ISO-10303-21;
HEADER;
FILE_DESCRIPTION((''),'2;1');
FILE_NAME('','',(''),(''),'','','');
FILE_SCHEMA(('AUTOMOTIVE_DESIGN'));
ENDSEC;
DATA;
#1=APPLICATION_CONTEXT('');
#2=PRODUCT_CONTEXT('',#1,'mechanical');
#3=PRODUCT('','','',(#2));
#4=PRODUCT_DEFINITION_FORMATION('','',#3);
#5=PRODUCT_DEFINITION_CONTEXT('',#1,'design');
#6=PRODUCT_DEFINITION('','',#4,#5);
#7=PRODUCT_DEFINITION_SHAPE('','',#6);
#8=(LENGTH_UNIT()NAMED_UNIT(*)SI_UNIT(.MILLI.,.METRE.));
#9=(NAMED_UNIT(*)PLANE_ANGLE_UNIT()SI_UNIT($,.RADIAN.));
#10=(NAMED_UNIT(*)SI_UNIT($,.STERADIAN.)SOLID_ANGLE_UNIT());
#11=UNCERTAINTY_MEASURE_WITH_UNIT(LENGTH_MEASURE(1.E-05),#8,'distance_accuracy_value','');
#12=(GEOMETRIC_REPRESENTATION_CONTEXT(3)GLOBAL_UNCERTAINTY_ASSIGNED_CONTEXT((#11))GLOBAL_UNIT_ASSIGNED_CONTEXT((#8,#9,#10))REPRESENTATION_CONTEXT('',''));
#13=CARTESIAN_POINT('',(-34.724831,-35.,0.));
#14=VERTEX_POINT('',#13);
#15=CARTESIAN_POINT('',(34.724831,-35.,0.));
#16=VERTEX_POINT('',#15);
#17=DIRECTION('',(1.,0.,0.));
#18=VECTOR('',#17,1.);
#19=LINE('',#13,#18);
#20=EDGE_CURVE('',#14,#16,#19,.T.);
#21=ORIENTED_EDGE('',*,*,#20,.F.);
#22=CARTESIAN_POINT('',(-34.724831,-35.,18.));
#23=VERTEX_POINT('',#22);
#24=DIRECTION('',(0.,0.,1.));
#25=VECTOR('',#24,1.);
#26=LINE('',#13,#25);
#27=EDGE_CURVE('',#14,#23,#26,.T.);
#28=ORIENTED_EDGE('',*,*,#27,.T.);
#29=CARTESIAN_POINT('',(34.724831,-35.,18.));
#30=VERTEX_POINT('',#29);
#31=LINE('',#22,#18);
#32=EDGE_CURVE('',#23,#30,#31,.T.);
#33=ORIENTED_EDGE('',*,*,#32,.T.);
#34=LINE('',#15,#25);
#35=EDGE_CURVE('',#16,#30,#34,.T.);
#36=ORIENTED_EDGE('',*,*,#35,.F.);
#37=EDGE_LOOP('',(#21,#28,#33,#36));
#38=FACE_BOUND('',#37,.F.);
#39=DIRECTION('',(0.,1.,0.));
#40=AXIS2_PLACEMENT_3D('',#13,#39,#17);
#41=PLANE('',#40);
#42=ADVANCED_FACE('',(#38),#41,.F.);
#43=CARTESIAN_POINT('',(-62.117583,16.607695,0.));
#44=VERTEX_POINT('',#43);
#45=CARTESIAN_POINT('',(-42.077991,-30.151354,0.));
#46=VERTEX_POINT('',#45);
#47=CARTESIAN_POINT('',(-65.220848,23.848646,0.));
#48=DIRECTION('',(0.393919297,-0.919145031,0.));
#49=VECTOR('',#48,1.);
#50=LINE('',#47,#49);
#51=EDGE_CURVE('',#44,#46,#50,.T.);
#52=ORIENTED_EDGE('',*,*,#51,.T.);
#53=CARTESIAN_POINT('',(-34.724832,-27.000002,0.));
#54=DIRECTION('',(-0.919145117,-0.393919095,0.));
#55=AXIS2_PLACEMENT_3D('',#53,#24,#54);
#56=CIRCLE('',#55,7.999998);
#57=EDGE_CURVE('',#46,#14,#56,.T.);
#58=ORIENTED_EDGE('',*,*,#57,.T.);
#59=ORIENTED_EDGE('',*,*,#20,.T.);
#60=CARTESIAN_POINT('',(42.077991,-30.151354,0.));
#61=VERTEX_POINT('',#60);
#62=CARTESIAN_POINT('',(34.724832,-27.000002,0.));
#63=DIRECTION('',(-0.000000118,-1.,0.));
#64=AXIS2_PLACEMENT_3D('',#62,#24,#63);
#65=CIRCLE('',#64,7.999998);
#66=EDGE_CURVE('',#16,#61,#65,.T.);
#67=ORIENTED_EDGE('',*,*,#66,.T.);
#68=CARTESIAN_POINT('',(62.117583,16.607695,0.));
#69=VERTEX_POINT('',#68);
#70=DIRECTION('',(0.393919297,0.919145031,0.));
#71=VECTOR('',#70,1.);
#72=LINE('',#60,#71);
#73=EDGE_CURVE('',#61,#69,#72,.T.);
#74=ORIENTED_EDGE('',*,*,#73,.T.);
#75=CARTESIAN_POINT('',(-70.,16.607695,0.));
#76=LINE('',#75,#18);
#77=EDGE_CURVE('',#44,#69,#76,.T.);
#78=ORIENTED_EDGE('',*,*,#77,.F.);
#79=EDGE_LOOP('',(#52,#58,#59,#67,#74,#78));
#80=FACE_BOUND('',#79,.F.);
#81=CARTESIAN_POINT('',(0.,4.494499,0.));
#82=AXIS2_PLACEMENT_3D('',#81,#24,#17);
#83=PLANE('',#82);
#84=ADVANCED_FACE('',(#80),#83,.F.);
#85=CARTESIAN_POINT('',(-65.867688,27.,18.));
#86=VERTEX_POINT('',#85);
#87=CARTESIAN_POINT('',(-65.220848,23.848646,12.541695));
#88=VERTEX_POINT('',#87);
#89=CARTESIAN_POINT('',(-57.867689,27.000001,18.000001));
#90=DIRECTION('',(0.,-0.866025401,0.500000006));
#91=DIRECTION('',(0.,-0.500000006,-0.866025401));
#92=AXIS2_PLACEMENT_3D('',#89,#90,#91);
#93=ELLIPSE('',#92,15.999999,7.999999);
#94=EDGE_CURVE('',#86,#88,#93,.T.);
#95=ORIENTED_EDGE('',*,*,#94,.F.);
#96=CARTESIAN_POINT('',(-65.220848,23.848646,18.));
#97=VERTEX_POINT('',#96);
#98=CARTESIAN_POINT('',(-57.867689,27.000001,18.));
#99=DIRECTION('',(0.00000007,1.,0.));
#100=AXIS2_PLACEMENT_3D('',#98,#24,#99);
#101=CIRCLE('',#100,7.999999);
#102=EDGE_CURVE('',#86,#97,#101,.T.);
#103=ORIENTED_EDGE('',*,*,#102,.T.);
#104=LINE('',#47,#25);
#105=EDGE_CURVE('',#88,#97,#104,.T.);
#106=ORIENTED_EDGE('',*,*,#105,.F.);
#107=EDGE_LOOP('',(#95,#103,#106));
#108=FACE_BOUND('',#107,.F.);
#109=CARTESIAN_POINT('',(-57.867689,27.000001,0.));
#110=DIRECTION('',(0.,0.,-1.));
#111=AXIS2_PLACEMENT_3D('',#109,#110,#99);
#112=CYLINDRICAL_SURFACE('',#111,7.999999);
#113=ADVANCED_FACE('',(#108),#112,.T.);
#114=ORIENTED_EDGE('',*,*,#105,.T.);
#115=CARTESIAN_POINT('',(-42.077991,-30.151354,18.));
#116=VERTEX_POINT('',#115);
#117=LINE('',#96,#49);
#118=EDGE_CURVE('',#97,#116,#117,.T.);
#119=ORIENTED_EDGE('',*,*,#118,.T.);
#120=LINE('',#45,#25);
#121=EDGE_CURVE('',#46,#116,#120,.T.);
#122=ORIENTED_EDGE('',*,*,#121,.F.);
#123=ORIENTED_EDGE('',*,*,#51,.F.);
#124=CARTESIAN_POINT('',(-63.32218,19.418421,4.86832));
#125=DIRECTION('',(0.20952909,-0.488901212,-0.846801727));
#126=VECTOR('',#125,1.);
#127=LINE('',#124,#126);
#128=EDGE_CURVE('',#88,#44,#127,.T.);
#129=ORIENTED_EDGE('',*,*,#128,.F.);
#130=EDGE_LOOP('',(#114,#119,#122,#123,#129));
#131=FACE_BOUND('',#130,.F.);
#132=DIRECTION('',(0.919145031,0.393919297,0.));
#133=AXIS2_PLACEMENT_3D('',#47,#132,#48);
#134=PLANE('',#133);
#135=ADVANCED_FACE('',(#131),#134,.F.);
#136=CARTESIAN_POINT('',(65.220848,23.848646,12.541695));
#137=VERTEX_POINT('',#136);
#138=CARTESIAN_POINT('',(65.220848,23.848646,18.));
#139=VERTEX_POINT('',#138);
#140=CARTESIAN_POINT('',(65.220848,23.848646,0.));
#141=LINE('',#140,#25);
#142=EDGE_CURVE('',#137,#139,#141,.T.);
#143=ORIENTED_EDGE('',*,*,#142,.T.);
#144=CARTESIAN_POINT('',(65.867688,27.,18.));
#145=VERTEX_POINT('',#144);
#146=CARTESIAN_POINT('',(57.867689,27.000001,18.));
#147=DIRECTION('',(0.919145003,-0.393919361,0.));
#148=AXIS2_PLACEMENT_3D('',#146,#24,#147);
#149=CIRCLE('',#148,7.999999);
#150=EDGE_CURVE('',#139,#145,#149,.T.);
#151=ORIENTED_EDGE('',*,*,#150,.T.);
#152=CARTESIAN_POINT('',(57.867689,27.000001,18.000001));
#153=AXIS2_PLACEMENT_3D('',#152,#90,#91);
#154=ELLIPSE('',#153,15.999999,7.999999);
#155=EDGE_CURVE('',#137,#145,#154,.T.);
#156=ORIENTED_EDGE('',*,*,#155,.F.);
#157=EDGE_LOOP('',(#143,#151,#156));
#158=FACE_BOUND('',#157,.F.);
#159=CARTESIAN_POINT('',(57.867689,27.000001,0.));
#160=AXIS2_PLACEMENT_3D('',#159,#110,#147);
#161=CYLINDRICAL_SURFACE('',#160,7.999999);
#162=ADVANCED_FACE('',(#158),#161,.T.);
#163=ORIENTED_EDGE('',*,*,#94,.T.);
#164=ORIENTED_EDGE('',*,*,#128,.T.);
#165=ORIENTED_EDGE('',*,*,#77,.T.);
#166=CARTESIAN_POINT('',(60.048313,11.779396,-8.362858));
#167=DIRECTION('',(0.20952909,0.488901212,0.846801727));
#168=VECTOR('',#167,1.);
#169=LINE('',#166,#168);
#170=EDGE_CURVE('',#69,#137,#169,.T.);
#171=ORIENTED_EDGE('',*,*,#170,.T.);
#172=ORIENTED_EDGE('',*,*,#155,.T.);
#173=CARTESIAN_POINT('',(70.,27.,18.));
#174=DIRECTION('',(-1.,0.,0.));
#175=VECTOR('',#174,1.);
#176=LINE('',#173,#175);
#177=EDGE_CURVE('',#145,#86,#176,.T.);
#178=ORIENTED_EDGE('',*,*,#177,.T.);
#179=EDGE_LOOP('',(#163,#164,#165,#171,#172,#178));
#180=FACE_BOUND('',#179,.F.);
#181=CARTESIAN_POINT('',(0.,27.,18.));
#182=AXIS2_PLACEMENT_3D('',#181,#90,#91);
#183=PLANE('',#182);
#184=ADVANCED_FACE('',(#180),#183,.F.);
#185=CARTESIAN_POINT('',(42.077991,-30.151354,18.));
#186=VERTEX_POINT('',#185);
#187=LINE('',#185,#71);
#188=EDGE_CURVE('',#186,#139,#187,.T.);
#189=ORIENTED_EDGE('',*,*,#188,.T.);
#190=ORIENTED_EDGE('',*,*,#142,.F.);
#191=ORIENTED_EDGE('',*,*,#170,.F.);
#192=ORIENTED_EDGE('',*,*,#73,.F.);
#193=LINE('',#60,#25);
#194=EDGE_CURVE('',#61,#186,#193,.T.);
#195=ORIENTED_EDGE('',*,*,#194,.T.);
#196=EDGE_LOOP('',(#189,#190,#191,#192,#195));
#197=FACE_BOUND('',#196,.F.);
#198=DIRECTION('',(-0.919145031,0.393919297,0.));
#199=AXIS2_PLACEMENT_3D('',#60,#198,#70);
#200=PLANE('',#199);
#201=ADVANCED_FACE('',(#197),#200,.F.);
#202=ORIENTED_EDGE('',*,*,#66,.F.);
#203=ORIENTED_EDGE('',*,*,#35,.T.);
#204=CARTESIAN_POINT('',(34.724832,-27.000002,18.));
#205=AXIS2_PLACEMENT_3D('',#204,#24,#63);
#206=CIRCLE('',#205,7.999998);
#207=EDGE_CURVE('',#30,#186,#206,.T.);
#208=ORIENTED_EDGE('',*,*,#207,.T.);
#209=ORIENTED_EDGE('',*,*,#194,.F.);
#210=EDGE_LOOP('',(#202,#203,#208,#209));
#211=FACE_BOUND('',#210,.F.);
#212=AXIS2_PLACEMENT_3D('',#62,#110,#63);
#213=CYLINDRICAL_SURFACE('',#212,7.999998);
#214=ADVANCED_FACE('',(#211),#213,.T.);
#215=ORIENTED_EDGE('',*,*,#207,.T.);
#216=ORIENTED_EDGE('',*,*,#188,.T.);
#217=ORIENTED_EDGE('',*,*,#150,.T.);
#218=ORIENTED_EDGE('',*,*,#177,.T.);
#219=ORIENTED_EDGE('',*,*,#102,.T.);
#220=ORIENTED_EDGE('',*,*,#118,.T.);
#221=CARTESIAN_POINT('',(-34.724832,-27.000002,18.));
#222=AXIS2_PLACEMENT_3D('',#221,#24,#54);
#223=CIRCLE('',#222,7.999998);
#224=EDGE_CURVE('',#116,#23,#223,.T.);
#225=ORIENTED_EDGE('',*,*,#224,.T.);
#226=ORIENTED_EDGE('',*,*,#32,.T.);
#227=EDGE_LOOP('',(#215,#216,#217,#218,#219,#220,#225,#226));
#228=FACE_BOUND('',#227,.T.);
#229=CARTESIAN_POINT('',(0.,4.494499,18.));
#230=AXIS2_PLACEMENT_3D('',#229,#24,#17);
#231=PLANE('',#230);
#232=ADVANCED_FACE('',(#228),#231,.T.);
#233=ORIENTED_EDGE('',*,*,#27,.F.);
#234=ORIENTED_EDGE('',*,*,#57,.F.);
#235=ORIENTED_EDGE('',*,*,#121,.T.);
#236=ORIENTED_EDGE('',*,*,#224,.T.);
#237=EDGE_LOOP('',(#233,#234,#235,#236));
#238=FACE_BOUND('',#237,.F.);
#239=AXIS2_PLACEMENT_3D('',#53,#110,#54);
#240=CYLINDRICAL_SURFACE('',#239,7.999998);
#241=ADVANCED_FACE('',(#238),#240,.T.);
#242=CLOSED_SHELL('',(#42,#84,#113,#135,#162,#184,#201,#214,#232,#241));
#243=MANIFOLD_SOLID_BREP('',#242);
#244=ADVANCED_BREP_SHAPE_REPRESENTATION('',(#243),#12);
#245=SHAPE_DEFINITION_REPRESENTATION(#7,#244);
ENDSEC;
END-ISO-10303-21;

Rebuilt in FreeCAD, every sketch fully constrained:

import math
import FreeCAD as App
import Part
import Sketcher
from FreeCAD import Vector
Q = App.Units.Quantity

doc = App.newDocument("Part")
params = doc.addObject("Spreadsheet::Sheet", "Params")
for row, (alias, value) in enumerate([
    ("sketch1_radius", "7.999999 mm"),
    ("pad1_length", "18 mm"),
    ("sketch2_width", "8 mm"),
    ("sketch2_height", "18 mm"),
    ("pocket1_length", "140 mm"),
], start=1):
    params.set(f"A{row}", alias)
    params.set(f"B{row}", "=" + value)
    params.setAlias(f"B{row}", alias)

body = doc.addObject("PartDesign::Body", "Body")

sketch1 = doc.addObject("Sketcher::SketchObject", "Sketch")
body.addObject(sketch1)
sketch1.AttachmentSupport = (doc.XY_Plane, [""])
sketch1.MapMode = "FlatFace"
sketch1.addGeometry(Part.LineSegment(Vector(57.867688, 35, 0), Vector(-57.867688, 35, 0)), False)
sketch1.addGeometry(Part.ArcOfCircle(Part.Circle(Vector(-57.867689, 27.000001, 0), Vector(0, 0, 1), 7.999999), math.radians(89.999996), math.radians(203.198594)), False)
sketch1.addGeometry(Part.LineSegment(Vector(-65.220848, 23.848646, 0), Vector(-42.077991, -30.151354, 0)), False)
sketch1.addGeometry(Part.ArcOfCircle(Part.Circle(Vector(-34.724832, -27.000002, 0), Vector(0, 0, 1), 7.999998), math.radians(-156.801422), math.radians(-89.999993)), False)
sketch1.addGeometry(Part.LineSegment(Vector(-34.724831, -35, 0), Vector(34.724831, -35, 0)), False)
sketch1.addGeometry(Part.ArcOfCircle(Part.Circle(Vector(34.724832, -27.000002, 0), Vector(0, 0, 1), 7.999998), math.radians(-90.000007), math.radians(-23.198578)), False)
sketch1.addGeometry(Part.LineSegment(Vector(42.077991, -30.151354, 0), Vector(65.220848, 23.848646, 0)), False)
sketch1.addGeometry(Part.ArcOfCircle(Part.Circle(Vector(57.867689, 27.000001, 0), Vector(0, 0, 1), 7.999999), math.radians(-23.198594), math.radians(90.000004)), False)
sketch1.addConstraint(Sketcher.Constraint("Tangent", 0, 2, 1, 1))
sketch1.addConstraint(Sketcher.Constraint("Tangent", 1, 2, 2, 1))
sketch1.addConstraint(Sketcher.Constraint("Tangent", 2, 2, 3, 1))
sketch1.addConstraint(Sketcher.Constraint("Tangent", 3, 2, 4, 1))
sketch1.addConstraint(Sketcher.Constraint("Tangent", 4, 2, 5, 1))
sketch1.addConstraint(Sketcher.Constraint("Tangent", 5, 2, 6, 1))
sketch1.addConstraint(Sketcher.Constraint("Tangent", 6, 2, 7, 1))
sketch1.addConstraint(Sketcher.Constraint("Tangent", 7, 2, 0, 1))
sketch1.addConstraint(Sketcher.Constraint("Horizontal", 0))
sketch1.addConstraint(Sketcher.Constraint("Horizontal", 4))
sketch1.addConstraint(Sketcher.Constraint("Equal", 1, 3))
sketch1.addConstraint(Sketcher.Constraint("Equal", 3, 5))
sketch1.addConstraint(Sketcher.Constraint("Equal", 5, 7))
sketch1.addConstraint(Sketcher.Constraint("Symmetric", 2, 2, 5, 2, -2))
sketch1.addConstraint(Sketcher.Constraint("Radius", 1, Q("7.999999 mm")))
sketch1.addConstraint(Sketcher.Constraint("DistanceY", -1, 1, 1, 3, Q("27.000001 mm")))
sketch1.addConstraint(Sketcher.Constraint("DistanceY", 3, 2, -1, 1, Q("35 mm")))
sketch1.addConstraint(Sketcher.Constraint("Distance", 2, Q("58.75025 mm")))
sketch1.addConstraint(Sketcher.Constraint("DistanceX", 0, 2, 0, 1, Q("115.735376 mm")))
sketch1.setExpression("Constraints[14]", "Params.sketch1_radius")
pad1 = doc.addObject("PartDesign::Pad", "Pad")
body.addObject(pad1)
pad1.Profile = sketch1
pad1.setExpression("Length", "Params.pad1_length")

sketch2 = doc.addObject("Sketcher::SketchObject", "Sketch001")
body.addObject(sketch2)
sketch2.AttachmentSupport = (doc.YZ_Plane, [""])
sketch2.MapMode = "FlatFace"
sketch2.addGeometry(Part.LineSegment(Vector(27, 18, 0), Vector(16.607695, 0, 0)), False)
sketch2.addGeometry(Part.LineSegment(Vector(16.607695, 0, 0), Vector(35, 0, 0)), False)
sketch2.addGeometry(Part.LineSegment(Vector(35, 0, 0), Vector(35, 18, 0)), False)
sketch2.addGeometry(Part.LineSegment(Vector(35, 18, 0), Vector(27, 18, 0)), False)
sketch2.addConstraint(Sketcher.Constraint("Coincident", 0, 2, 1, 1))
sketch2.addConstraint(Sketcher.Constraint("Coincident", 1, 2, 2, 1))
sketch2.addConstraint(Sketcher.Constraint("Coincident", 2, 2, 3, 1))
sketch2.addConstraint(Sketcher.Constraint("Coincident", 3, 2, 0, 1))
sketch2.addConstraint(Sketcher.Constraint("Horizontal", 1))
sketch2.addConstraint(Sketcher.Constraint("Vertical", 2))
sketch2.addConstraint(Sketcher.Constraint("Horizontal", 3))
sketch2.addConstraint(Sketcher.Constraint("PointOnObject", 0, 2, -1))
sketch2.addConstraint(Sketcher.Constraint("DistanceX", 3, 2, 3, 1, Q("8 mm")))
sketch2.addConstraint(Sketcher.Constraint("DistanceY", 2, 1, 2, 2, Q("18 mm")))
sketch2.addConstraint(Sketcher.Constraint("Angle", 0, Q("-120 deg")))
sketch2.addConstraint(Sketcher.Constraint("DistanceX", -1, 1, 1, 2, Q("35 mm")))
sketch2.setExpression("Constraints[8]", "Params.sketch2_width")
sketch2.setExpression("Constraints[9]", "Params.sketch2_height")
pocket1 = doc.addObject("PartDesign::Pocket", "Pocket")
body.addObject(pocket1)
pocket1.Profile = sketch2
pocket1.setExpression("Length", "Params.pocket1_length")
pocket1.Midplane = True

doc.recompute()
